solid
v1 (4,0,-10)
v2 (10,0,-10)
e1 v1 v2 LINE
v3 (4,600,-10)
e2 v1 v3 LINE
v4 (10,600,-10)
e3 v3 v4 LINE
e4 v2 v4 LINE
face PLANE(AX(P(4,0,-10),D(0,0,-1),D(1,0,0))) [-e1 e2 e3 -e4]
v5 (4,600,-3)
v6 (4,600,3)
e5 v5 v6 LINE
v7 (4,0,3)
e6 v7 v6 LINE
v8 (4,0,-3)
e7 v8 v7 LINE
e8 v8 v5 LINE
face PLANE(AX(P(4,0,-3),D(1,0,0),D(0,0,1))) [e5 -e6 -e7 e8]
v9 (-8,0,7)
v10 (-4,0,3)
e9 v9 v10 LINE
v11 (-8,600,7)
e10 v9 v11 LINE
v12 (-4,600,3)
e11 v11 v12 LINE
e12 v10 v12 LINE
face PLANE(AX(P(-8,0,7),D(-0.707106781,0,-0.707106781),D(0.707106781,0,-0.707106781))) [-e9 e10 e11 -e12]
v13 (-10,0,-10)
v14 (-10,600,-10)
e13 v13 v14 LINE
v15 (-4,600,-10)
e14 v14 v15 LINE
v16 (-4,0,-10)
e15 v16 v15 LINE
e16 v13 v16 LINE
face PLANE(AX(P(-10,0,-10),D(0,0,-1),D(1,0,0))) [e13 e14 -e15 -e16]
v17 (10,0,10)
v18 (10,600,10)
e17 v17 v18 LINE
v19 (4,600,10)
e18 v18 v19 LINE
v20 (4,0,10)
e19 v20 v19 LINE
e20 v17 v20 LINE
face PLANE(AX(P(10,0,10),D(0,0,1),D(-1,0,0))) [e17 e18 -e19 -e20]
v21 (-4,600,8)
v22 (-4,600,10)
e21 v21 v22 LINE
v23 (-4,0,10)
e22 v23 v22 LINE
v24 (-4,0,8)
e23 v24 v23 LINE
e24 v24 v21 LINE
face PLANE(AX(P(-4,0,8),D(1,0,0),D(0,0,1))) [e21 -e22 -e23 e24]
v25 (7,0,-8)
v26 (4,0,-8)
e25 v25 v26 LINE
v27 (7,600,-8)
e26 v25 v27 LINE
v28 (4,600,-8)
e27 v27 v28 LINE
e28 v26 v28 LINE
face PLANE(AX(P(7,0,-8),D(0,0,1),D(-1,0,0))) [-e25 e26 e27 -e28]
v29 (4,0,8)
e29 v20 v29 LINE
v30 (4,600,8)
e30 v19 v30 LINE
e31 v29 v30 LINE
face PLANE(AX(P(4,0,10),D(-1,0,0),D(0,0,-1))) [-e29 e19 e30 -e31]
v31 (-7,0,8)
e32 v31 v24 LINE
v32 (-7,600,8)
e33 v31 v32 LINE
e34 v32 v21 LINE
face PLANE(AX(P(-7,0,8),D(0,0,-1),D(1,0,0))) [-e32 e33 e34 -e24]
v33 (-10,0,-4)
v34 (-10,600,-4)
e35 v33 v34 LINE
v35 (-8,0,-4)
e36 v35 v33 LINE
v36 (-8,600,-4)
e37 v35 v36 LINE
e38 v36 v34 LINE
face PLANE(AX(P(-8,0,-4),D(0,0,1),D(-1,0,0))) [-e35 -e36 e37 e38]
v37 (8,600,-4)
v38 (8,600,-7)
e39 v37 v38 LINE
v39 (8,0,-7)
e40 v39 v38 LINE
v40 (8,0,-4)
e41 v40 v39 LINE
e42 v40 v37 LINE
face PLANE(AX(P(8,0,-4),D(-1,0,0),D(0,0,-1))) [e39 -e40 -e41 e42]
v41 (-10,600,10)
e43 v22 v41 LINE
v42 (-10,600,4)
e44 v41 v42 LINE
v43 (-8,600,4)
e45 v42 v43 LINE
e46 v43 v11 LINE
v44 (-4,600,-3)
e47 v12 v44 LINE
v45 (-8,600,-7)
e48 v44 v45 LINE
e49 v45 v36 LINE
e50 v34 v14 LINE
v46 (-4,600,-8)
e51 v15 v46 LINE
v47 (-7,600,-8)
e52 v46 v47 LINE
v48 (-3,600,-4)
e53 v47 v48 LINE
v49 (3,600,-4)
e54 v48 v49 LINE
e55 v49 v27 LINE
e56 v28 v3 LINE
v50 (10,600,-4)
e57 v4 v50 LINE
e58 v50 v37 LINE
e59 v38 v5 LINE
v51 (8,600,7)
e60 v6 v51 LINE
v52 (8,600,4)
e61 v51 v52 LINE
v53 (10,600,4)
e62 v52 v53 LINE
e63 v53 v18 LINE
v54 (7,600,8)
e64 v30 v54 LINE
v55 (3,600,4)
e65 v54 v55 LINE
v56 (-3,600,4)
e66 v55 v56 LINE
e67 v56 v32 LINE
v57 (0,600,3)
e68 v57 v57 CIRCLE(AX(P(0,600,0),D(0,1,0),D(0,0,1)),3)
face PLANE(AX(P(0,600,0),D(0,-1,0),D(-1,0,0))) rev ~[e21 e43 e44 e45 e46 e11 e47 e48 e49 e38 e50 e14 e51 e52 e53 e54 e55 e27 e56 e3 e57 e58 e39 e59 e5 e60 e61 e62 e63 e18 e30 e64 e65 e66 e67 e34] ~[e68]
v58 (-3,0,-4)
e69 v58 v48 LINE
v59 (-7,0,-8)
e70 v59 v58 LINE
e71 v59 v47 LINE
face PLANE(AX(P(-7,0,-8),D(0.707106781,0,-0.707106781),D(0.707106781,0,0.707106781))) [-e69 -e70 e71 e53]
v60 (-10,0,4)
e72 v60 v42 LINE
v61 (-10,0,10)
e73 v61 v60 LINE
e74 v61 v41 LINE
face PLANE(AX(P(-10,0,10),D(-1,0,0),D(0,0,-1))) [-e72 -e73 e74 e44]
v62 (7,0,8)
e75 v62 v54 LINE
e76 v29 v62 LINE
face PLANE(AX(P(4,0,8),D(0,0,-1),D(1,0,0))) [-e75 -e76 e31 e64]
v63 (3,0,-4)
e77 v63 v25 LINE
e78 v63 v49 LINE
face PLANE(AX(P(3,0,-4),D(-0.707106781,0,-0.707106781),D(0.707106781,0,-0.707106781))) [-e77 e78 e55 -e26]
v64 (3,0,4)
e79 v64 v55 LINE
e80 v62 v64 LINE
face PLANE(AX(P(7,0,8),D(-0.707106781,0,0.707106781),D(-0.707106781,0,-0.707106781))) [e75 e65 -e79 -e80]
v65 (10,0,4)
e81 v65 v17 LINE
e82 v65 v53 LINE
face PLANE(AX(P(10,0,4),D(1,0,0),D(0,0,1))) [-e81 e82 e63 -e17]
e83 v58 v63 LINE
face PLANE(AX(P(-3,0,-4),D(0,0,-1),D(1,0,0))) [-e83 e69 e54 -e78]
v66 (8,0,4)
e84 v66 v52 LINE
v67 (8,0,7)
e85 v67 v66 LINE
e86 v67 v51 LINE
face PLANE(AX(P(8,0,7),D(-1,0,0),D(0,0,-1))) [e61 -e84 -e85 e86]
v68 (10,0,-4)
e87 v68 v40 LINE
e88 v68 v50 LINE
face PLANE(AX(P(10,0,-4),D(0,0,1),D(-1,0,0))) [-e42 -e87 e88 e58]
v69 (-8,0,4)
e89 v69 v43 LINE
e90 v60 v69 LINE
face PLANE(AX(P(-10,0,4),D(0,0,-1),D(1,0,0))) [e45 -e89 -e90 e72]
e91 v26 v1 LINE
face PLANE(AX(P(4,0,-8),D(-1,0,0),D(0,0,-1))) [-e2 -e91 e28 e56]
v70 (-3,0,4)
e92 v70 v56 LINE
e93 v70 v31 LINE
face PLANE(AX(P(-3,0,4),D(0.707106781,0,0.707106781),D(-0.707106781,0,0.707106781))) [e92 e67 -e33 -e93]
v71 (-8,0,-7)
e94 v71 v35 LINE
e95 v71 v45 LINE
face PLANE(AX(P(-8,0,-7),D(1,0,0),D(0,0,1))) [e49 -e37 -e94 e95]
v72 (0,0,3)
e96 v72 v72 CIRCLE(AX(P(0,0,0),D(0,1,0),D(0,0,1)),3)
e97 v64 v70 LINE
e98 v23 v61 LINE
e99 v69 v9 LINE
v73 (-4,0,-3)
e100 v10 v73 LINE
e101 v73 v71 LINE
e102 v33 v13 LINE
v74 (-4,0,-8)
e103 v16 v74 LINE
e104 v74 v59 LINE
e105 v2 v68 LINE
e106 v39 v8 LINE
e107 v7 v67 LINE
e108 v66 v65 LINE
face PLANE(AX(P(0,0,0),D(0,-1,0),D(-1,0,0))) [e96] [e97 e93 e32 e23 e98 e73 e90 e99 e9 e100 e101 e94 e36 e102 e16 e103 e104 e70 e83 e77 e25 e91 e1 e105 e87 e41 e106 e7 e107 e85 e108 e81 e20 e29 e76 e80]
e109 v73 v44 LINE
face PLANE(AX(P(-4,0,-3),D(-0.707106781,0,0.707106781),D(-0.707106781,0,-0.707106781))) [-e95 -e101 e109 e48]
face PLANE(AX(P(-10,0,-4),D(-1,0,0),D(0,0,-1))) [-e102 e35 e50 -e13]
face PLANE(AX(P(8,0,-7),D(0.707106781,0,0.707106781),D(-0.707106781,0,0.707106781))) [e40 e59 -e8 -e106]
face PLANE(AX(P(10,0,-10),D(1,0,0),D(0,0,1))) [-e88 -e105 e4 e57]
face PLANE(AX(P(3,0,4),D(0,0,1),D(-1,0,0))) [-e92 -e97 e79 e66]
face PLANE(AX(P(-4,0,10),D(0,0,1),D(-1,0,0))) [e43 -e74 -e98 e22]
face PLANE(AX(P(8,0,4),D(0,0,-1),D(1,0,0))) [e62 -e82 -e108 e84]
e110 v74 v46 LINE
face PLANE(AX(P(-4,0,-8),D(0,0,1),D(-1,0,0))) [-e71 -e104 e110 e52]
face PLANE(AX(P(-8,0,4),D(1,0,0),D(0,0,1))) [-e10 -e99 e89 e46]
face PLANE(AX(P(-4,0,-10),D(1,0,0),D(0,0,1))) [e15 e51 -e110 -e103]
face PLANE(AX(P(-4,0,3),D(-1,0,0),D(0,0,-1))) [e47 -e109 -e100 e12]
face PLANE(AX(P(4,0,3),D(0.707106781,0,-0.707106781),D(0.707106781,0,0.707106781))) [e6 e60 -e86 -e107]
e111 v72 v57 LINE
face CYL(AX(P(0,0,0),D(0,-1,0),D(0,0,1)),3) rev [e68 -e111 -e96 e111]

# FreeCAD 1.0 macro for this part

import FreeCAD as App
import Part
import Sketcher
from FreeCAD import Vector
Q = App.Units.Quantity

doc = App.newDocument("Part")
body = doc.addObject("PartDesign::Body", "Body")

# Sketch on XZ plane
sketch1 = body.newObject("Sketcher::SketchObject", "Sketch")
sketch1.AttachmentSupport = (doc.getObject("XZ_Plane"), [""])
sketch1.MapMode = "FlatFace"
sketch1.addGeometry([
    Part.LineSegment(Vector(-4, -8, 0), Vector(-4, -10, 0)),  # 0
    Part.LineSegment(Vector(-4, -10, 0), Vector(-10, -10, 0)),  # 1
    Part.LineSegment(Vector(-10, -10, 0), Vector(-10, -4, 0)),  # 2
    Part.LineSegment(Vector(-10, -4, 0), Vector(-8, -4, 0)),  # 3
    Part.LineSegment(Vector(-8, -4, 0), Vector(-8, -7, 0)),  # 4
    Part.LineSegment(Vector(-8, -7, 0), Vector(-4, -3, 0)),  # 5
    Part.LineSegment(Vector(-4, -3, 0), Vector(-4, 3, 0)),  # 6
    Part.LineSegment(Vector(-4, 3, 0), Vector(-8, 7, 0)),  # 7
    Part.LineSegment(Vector(-8, 7, 0), Vector(-8, 4, 0)),  # 8
    Part.LineSegment(Vector(-8, 4, 0), Vector(-10, 4, 0)),  # 9
    Part.LineSegment(Vector(-10, 4, 0), Vector(-10, 10, 0)),  # 10
    Part.LineSegment(Vector(-10, 10, 0), Vector(-4, 10, 0)),  # 11
    Part.LineSegment(Vector(-4, 10, 0), Vector(-4, 8, 0)),  # 12
    Part.LineSegment(Vector(-4, 8, 0), Vector(-7, 8, 0)),  # 13
    Part.LineSegment(Vector(-7, 8, 0), Vector(-3, 4, 0)),  # 14
    Part.LineSegment(Vector(-3, 4, 0), Vector(3, 4, 0)),  # 15
    Part.LineSegment(Vector(3, 4, 0), Vector(7, 8, 0)),  # 16
    Part.LineSegment(Vector(7, 8, 0), Vector(4, 8, 0)),  # 17
    Part.LineSegment(Vector(4, 8, 0), Vector(4, 10, 0)),  # 18
    Part.LineSegment(Vector(4, 10, 0), Vector(10, 10, 0)),  # 19
    Part.LineSegment(Vector(10, 10, 0), Vector(10, 4, 0)),  # 20
    Part.LineSegment(Vector(10, 4, 0), Vector(8, 4, 0)),  # 21
    Part.LineSegment(Vector(8, 4, 0), Vector(8, 7, 0)),  # 22
    Part.LineSegment(Vector(8, 7, 0), Vector(4, 3, 0)),  # 23
    Part.LineSegment(Vector(4, 3, 0), Vector(4, -3, 0)),  # 24
    Part.LineSegment(Vector(4, -3, 0), Vector(8, -7, 0)),  # 25
    Part.LineSegment(Vector(8, -7, 0), Vector(8, -4, 0)),  # 26
    Part.LineSegment(Vector(8, -4, 0), Vector(10, -4, 0)),  # 27
    Part.LineSegment(Vector(10, -4, 0), Vector(10, -10, 0)),  # 28
    Part.LineSegment(Vector(10, -10, 0), Vector(4, -10, 0)),  # 29
    Part.LineSegment(Vector(4, -10, 0), Vector(4, -8, 0)),  # 30
    Part.LineSegment(Vector(4, -8, 0), Vector(7, -8, 0)),  # 31
    Part.LineSegment(Vector(7, -8, 0), Vector(3, -4, 0)),  # 32
    Part.LineSegment(Vector(3, -4, 0), Vector(-3, -4, 0)),  # 33
    Part.LineSegment(Vector(-3, -4, 0), Vector(-7, -8, 0)),  # 34
    Part.LineSegment(Vector(-7, -8, 0), Vector(-4, -8, 0)),  # 35
    Part.Circle(Vector(0, 0, 0), Vector(0, 0, 1), 3),  # 36
], False)
sketch1.addConstraint([
    Sketcher.Constraint("Coincident", 0, 2, 1, 1),
    Sketcher.Constraint("Coincident", 1, 2, 2, 1),
    Sketcher.Constraint("Coincident", 2, 2, 3, 1),
    Sketcher.Constraint("Coincident", 3, 2, 4, 1),
    Sketcher.Constraint("Coincident", 4, 2, 5, 1),
    Sketcher.Constraint("Coincident", 5, 2, 6, 1),
    Sketcher.Constraint("Coincident", 6, 2, 7, 1),
    Sketcher.Constraint("Coincident", 7, 2, 8, 1),
    Sketcher.Constraint("Coincident", 8, 2, 9, 1),
    Sketcher.Constraint("Coincident", 9, 2, 10, 1),
    Sketcher.Constraint("Coincident", 10, 2, 11, 1),
    Sketcher.Constraint("Coincident", 11, 2, 12, 1),
    Sketcher.Constraint("Coincident", 12, 2, 13, 1),
    Sketcher.Constraint("Coincident", 13, 2, 14, 1),
    Sketcher.Constraint("Coincident", 14, 2, 15, 1),
    Sketcher.Constraint("Coincident", 15, 2, 16, 1),
    Sketcher.Constraint("Coincident", 16, 2, 17, 1),
    Sketcher.Constraint("Coincident", 17, 2, 18, 1),
    Sketcher.Constraint("Coincident", 18, 2, 19, 1),
    Sketcher.Constraint("Coincident", 19, 2, 20, 1),
    Sketcher.Constraint("Coincident", 20, 2, 21, 1),
    Sketcher.Constraint("Coincident", 21, 2, 22, 1),
    Sketcher.Constraint("Coincident", 22, 2, 23, 1),
    Sketcher.Constraint("Coincident", 23, 2, 24, 1),
    Sketcher.Constraint("Coincident", 24, 2, 25, 1),
    Sketcher.Constraint("Coincident", 25, 2, 26, 1),
    Sketcher.Constraint("Coincident", 26, 2, 27, 1),
    Sketcher.Constraint("Coincident", 27, 2, 28, 1),
    Sketcher.Constraint("Coincident", 28, 2, 29, 1),
    Sketcher.Constraint("Coincident", 29, 2, 30, 1),
    Sketcher.Constraint("Coincident", 30, 2, 31, 1),
    Sketcher.Constraint("Coincident", 31, 2, 32, 1),
    Sketcher.Constraint("Coincident", 32, 2, 33, 1),
    Sketcher.Constraint("Coincident", 33, 2, 34, 1),
    Sketcher.Constraint("Coincident", 34, 2, 35, 1),
    Sketcher.Constraint("Coincident", 35, 2, 0, 1),
    Sketcher.Constraint("Vertical", 0),
    Sketcher.Constraint("Horizontal", 1),
    Sketcher.Constraint("Vertical", 2),
    Sketcher.Constraint("Horizontal", 3),
    Sketcher.Constraint("Vertical", 4),
    Sketcher.Constraint("Vertical", 6),
    Sketcher.Constraint("Vertical", 8),
    Sketcher.Constraint("Horizontal", 9),
    Sketcher.Constraint("Vertical", 10),
    Sketcher.Constraint("Horizontal", 11),
    Sketcher.Constraint("Vertical", 12),
    Sketcher.Constraint("Horizontal", 13),
    Sketcher.Constraint("Horizontal", 15),
    Sketcher.Constraint("Horizontal", 17),
    Sketcher.Constraint("Vertical", 18),
    Sketcher.Constraint("Horizontal", 19),
    Sketcher.Constraint("Vertical", 20),
    Sketcher.Constraint("Horizontal", 21),
    Sketcher.Constraint("Vertical", 22),
    Sketcher.Constraint("Vertical", 24),
    Sketcher.Constraint("Vertical", 26),
    Sketcher.Constraint("Horizontal", 27),
    Sketcher.Constraint("Vertical", 28),
    Sketcher.Constraint("Horizontal", 29),
    Sketcher.Constraint("Vertical", 30),
    Sketcher.Constraint("Horizontal", 31),
    Sketcher.Constraint("Horizontal", 33),
    Sketcher.Constraint("Horizontal", 35),
    Sketcher.Constraint("Coincident", 36, 3, -1, 1),
    Sketcher.Constraint("Symmetric", 0, 2, 18, 2, -1, 1),
    Sketcher.Constraint("Symmetric", 2, 2, 20, 2, -1, 1),
    Sketcher.Constraint("Symmetric", 4, 2, 22, 2, -1, 1),
    Sketcher.Constraint("Symmetric", 5, 2, 23, 2, -1, 1),
    Sketcher.Constraint("Symmetric", 7, 2, 25, 2, -1, 1),
    Sketcher.Constraint("Symmetric", 9, 2, 27, 2, -1, 1),
    Sketcher.Constraint("Symmetric", 11, 2, 29, 2, -1, 1),
    Sketcher.Constraint("Symmetric", 13, 2, 31, 2, -1, 1),
    Sketcher.Constraint("Symmetric", 14, 2, 32, 2, -1, 1),
    Sketcher.Constraint("Symmetric", 16, 2, 34, 2, -1, 1),
    Sketcher.Constraint("Symmetric", 13, 2, 16, 2, -2),
    Sketcher.Constraint("Symmetric", 11, 2, 18, 2, -2),
    Sketcher.Constraint("Symmetric", 9, 2, 20, 2, -2),
    Sketcher.Constraint("Symmetric", 7, 2, 22, 2, -2),
    Sketcher.Constraint("Perpendicular", 5, 7),
    Sketcher.Constraint("Parallel", 7, 14),
    Sketcher.Constraint("Perpendicular", 14, 16),
    Sketcher.Constraint("Perpendicular", 23, 25),
    Sketcher.Constraint("Perpendicular", 32, 34),
    Sketcher.Constraint("Horizontal", 9, 2, 14, 2),
    Sketcher.Constraint("Horizontal", 6, 2, 23, 2),
    Sketcher.Constraint("Vertical", 0, 2, 5, 2),
    Sketcher.Constraint("Equal", 11, 15),
    Sketcher.Constraint("Equal", 27, 0),
    Sketcher.Constraint("Equal", 33, 2),
    Sketcher.Constraint("Equal", 35, 4),
    Sketcher.Constraint("Equal", 2, 6),
    Sketcher.Constraint("Diameter", 36, Q("6 mm")),
    Sketcher.Constraint("DistanceX", 1, 2, 1, 1, Q("6 mm")),
    Sketcher.Constraint("DistanceX", 3, 1, 3, 2, Q("2 mm")),
    Sketcher.Constraint("DistanceX", 13, 2, 13, 1, Q("3 mm")),
])
pad1 = body.newObject("PartDesign::Pad", "Pad")
pad1.Profile = sketch1
pad1.Length = 600
pad1.Reversed = True

doc.recompute()
